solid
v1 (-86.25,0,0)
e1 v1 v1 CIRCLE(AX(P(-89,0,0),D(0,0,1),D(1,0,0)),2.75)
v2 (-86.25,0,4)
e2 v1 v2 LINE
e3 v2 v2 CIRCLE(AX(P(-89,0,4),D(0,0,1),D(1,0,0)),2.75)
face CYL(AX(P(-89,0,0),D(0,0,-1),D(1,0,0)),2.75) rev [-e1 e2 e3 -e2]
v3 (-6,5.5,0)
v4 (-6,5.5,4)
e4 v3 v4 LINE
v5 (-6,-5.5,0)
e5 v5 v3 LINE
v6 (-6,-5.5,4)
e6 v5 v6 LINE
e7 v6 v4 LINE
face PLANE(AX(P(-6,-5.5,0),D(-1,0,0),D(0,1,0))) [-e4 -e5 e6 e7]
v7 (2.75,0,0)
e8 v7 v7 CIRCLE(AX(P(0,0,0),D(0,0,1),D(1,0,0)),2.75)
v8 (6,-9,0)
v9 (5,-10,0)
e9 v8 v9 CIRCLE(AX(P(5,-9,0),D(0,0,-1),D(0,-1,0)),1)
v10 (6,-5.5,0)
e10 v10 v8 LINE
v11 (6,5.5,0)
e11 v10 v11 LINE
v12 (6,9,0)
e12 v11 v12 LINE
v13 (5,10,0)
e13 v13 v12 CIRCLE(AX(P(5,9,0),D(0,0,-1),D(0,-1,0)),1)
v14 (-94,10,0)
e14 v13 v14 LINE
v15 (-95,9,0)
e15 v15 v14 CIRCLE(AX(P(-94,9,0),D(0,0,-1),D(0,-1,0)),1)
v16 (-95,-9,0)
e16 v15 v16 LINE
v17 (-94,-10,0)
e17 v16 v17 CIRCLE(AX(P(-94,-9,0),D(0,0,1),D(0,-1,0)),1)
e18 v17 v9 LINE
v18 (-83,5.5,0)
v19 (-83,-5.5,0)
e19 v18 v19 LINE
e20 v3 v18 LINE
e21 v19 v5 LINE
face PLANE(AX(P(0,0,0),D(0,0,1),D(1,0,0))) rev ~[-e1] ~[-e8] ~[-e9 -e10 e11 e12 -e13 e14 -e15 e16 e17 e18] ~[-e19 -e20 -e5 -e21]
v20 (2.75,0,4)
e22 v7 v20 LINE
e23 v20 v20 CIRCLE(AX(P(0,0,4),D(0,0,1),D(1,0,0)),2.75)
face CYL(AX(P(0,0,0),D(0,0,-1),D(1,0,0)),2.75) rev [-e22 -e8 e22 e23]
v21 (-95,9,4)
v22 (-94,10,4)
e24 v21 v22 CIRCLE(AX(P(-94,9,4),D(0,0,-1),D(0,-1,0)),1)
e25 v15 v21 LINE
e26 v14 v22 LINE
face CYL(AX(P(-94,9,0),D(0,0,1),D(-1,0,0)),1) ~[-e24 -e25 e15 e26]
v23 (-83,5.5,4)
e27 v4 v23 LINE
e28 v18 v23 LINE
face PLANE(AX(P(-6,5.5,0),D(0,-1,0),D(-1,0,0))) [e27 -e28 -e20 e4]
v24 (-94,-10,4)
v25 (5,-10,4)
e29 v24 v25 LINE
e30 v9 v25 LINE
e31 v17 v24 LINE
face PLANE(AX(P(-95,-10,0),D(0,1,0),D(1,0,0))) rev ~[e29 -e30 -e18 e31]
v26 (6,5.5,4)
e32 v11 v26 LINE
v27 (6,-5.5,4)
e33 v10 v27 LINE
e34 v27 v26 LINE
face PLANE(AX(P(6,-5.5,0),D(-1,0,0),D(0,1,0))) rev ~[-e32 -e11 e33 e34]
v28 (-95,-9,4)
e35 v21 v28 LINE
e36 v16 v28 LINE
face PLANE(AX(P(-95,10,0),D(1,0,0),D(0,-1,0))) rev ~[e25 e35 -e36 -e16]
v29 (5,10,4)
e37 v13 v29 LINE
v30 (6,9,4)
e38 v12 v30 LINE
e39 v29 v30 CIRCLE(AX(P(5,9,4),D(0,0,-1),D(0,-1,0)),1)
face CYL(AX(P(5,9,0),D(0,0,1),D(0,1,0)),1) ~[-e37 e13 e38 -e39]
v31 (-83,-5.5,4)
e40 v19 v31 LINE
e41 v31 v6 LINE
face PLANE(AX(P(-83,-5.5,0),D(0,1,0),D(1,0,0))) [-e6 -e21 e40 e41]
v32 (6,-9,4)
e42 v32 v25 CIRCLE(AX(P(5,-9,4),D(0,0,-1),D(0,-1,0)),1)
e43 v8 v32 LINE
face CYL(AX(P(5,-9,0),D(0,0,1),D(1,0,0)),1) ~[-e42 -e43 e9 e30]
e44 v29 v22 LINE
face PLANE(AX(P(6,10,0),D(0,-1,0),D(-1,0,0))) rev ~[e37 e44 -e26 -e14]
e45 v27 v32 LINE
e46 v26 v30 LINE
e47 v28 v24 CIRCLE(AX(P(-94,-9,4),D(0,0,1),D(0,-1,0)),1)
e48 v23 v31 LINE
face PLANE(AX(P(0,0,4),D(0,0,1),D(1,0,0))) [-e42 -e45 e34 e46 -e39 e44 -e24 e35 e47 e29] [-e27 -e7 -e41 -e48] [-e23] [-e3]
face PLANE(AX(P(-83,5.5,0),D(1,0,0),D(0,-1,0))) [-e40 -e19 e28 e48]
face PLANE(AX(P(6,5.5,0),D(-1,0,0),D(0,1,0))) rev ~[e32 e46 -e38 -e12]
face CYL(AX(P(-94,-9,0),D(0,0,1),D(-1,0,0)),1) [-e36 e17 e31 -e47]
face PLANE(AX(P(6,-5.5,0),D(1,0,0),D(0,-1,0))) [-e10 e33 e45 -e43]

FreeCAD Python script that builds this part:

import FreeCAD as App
import Part
import Sketcher


def edges_at(feature, points):
    """Names of the edges that pass closest to the given points."""
    edges = feature.Shape.Edges
    near = lambda p: min(range(len(edges)), key=lambda i: edges[i].distToShape(Part.Vertex(*p))[0])
    return sorted({f"Edge{near(p) + 1}" for p in points})

doc = App.newDocument("Part")
params = doc.addObject("Spreadsheet::Sheet", "Params")
for row, (alias, value) in enumerate([
    ("sketch1_diameter", "5.5 mm"),
    ("sketch1_height", "20 mm"),
    ("sketch1_height2", "11 mm"),
    ("sketch1_width", "101 mm"),
    ("pad1_length", "4 mm"),
    ("fillet_radius", "1 mm"),
], start=1):
    params.set(f"A{row}", alias)
    params.set(f"B{row}", "=" + value)
    params.setAlias(f"B{row}", alias)

body = doc.addObject("PartDesign::Body", "Body")

# Sketch on XY plane
sketch1 = body.newObject("Sketcher::SketchObject", "Sketch")
sketch1.AttachmentSupport = (doc.getObject("XY_Plane"), [""])
sketch1.MapMode = "FlatFace"
sketch1.addGeometry(Part.LineSegment(App.Vector(-95, 10, 0), App.Vector(-95, -10, 0)), False)
sketch1.addGeometry(Part.LineSegment(App.Vector(-95, -10, 0), App.Vector(6, -10, 0)), False)
sketch1.addGeometry(Part.LineSegment(App.Vector(6, -10, 0), App.Vector(6, 10, 0)), False)
sketch1.addGeometry(Part.LineSegment(App.Vector(6, 10, 0), App.Vector(-95, 10, 0)), False)
sketch1.addGeometry(Part.Circle(App.Vector(-89, 0, 0), App.Vector(0, 0, 1), 2.75), False)
sketch1.addGeometry(Part.LineSegment(App.Vector(-6, -5.5, 0), App.Vector(-83, -5.5, 0)), False)
sketch1.addGeometry(Part.LineSegment(App.Vector(-83, -5.5, 0), App.Vector(-83, 5.5, 0)), False)
sketch1.addGeometry(Part.LineSegment(App.Vector(-83, 5.5, 0), App.Vector(-6, 5.5, 0)), False)
sketch1.addGeometry(Part.LineSegment(App.Vector(-6, 5.5, 0), App.Vector(-6, -5.5, 0)), False)
sketch1.addGeometry(Part.Circle(App.Vector(0, 0, 0), App.Vector(0, 0, 1), 2.75), False)
sketch1.addConstraint(Sketcher.Constraint("Coincident", 0, 2, 1, 1))
sketch1.addConstraint(Sketcher.Constraint("Coincident", 1, 2, 2, 1))
sketch1.addConstraint(Sketcher.Constraint("Coincident", 2, 2, 3, 1))
sketch1.addConstraint(Sketcher.Constraint("Coincident", 3, 2, 0, 1))
sketch1.addConstraint(Sketcher.Constraint("Coincident", 5, 2, 6, 1))
sketch1.addConstraint(Sketcher.Constraint("Coincident", 6, 2, 7, 1))
sketch1.addConstraint(Sketcher.Constraint("Coincident", 7, 2, 8, 1))
sketch1.addConstraint(Sketcher.Constraint("Coincident", 8, 2, 5, 1))
sketch1.addConstraint(Sketcher.Constraint("Vertical", 0))
sketch1.addConstraint(Sketcher.Constraint("Horizontal", 1))
sketch1.addConstraint(Sketcher.Constraint("Vertical", 2))
sketch1.addConstraint(Sketcher.Constraint("Horizontal", 3))
sketch1.addConstraint(Sketcher.Constraint("Horizontal", 5))
sketch1.addConstraint(Sketcher.Constraint("Vertical", 6))
sketch1.addConstraint(Sketcher.Constraint("Horizontal", 7))
sketch1.addConstraint(Sketcher.Constraint("Vertical", 8))
sketch1.addConstraint(Sketcher.Constraint("Coincident", 9, 3, -1, 1))
sketch1.addConstraint(Sketcher.Constraint("Equal", 4, 9))
sketch1.addConstraint(Sketcher.Constraint("PointOnObject", 4, 3, -1))
sketch1.addConstraint(Sketcher.Constraint("Diameter", 4, 5.5))
sketch1.addConstraint(Sketcher.Constraint("DistanceY", 0, 2, 0, 1, 20.0))
sketch1.addConstraint(Sketcher.Constraint("DistanceY", 6, 1, 6, 2, 11.0))
sketch1.addConstraint(Sketcher.Constraint("DistanceX", -1, 1, 1, 2, 6.0))
sketch1.addConstraint(Sketcher.Constraint("DistanceX", 7, 2, -1, 1, 6.0))
sketch1.addConstraint(Sketcher.Constraint("DistanceX", 0, 2, 4, 3, 6.0))
sketch1.addConstraint(Sketcher.Constraint("DistanceX", 4, 3, 5, 2, 6.0))
sketch1.addConstraint(Sketcher.Constraint("DistanceY", 5, 2, -1, 1, 5.5))
sketch1.addConstraint(Sketcher.Constraint("DistanceX", 1, 1, 1, 2, 101.0))
sketch1.addConstraint(Sketcher.Constraint("DistanceY", 0, 2, -1, 1, 10.0))
sketch1.setExpression("Constraints[19]", "Params.sketch1_diameter")
sketch1.setExpression("Constraints[20]", "Params.sketch1_height")
sketch1.setExpression("Constraints[21]", "Params.sketch1_height2")
sketch1.setExpression("Constraints[27]", "Params.sketch1_width")
pad1 = body.newObject("PartDesign::Pad", "Pad")
pad1.Profile = sketch1
pad1.setExpression("Length", "Params.pad1_length")
doc.recompute()

fillet = body.newObject("PartDesign::Fillet", "Fillet")
fillet.Base = (pad1, edges_at(pad1, [
    (-95, -10, 2),
    (-95, 10, 2),
    (6, -10, 2),
    (6, 10, 2),
]))
fillet.setExpression("Radius", "Params.fillet_radius")

doc.recompute()
